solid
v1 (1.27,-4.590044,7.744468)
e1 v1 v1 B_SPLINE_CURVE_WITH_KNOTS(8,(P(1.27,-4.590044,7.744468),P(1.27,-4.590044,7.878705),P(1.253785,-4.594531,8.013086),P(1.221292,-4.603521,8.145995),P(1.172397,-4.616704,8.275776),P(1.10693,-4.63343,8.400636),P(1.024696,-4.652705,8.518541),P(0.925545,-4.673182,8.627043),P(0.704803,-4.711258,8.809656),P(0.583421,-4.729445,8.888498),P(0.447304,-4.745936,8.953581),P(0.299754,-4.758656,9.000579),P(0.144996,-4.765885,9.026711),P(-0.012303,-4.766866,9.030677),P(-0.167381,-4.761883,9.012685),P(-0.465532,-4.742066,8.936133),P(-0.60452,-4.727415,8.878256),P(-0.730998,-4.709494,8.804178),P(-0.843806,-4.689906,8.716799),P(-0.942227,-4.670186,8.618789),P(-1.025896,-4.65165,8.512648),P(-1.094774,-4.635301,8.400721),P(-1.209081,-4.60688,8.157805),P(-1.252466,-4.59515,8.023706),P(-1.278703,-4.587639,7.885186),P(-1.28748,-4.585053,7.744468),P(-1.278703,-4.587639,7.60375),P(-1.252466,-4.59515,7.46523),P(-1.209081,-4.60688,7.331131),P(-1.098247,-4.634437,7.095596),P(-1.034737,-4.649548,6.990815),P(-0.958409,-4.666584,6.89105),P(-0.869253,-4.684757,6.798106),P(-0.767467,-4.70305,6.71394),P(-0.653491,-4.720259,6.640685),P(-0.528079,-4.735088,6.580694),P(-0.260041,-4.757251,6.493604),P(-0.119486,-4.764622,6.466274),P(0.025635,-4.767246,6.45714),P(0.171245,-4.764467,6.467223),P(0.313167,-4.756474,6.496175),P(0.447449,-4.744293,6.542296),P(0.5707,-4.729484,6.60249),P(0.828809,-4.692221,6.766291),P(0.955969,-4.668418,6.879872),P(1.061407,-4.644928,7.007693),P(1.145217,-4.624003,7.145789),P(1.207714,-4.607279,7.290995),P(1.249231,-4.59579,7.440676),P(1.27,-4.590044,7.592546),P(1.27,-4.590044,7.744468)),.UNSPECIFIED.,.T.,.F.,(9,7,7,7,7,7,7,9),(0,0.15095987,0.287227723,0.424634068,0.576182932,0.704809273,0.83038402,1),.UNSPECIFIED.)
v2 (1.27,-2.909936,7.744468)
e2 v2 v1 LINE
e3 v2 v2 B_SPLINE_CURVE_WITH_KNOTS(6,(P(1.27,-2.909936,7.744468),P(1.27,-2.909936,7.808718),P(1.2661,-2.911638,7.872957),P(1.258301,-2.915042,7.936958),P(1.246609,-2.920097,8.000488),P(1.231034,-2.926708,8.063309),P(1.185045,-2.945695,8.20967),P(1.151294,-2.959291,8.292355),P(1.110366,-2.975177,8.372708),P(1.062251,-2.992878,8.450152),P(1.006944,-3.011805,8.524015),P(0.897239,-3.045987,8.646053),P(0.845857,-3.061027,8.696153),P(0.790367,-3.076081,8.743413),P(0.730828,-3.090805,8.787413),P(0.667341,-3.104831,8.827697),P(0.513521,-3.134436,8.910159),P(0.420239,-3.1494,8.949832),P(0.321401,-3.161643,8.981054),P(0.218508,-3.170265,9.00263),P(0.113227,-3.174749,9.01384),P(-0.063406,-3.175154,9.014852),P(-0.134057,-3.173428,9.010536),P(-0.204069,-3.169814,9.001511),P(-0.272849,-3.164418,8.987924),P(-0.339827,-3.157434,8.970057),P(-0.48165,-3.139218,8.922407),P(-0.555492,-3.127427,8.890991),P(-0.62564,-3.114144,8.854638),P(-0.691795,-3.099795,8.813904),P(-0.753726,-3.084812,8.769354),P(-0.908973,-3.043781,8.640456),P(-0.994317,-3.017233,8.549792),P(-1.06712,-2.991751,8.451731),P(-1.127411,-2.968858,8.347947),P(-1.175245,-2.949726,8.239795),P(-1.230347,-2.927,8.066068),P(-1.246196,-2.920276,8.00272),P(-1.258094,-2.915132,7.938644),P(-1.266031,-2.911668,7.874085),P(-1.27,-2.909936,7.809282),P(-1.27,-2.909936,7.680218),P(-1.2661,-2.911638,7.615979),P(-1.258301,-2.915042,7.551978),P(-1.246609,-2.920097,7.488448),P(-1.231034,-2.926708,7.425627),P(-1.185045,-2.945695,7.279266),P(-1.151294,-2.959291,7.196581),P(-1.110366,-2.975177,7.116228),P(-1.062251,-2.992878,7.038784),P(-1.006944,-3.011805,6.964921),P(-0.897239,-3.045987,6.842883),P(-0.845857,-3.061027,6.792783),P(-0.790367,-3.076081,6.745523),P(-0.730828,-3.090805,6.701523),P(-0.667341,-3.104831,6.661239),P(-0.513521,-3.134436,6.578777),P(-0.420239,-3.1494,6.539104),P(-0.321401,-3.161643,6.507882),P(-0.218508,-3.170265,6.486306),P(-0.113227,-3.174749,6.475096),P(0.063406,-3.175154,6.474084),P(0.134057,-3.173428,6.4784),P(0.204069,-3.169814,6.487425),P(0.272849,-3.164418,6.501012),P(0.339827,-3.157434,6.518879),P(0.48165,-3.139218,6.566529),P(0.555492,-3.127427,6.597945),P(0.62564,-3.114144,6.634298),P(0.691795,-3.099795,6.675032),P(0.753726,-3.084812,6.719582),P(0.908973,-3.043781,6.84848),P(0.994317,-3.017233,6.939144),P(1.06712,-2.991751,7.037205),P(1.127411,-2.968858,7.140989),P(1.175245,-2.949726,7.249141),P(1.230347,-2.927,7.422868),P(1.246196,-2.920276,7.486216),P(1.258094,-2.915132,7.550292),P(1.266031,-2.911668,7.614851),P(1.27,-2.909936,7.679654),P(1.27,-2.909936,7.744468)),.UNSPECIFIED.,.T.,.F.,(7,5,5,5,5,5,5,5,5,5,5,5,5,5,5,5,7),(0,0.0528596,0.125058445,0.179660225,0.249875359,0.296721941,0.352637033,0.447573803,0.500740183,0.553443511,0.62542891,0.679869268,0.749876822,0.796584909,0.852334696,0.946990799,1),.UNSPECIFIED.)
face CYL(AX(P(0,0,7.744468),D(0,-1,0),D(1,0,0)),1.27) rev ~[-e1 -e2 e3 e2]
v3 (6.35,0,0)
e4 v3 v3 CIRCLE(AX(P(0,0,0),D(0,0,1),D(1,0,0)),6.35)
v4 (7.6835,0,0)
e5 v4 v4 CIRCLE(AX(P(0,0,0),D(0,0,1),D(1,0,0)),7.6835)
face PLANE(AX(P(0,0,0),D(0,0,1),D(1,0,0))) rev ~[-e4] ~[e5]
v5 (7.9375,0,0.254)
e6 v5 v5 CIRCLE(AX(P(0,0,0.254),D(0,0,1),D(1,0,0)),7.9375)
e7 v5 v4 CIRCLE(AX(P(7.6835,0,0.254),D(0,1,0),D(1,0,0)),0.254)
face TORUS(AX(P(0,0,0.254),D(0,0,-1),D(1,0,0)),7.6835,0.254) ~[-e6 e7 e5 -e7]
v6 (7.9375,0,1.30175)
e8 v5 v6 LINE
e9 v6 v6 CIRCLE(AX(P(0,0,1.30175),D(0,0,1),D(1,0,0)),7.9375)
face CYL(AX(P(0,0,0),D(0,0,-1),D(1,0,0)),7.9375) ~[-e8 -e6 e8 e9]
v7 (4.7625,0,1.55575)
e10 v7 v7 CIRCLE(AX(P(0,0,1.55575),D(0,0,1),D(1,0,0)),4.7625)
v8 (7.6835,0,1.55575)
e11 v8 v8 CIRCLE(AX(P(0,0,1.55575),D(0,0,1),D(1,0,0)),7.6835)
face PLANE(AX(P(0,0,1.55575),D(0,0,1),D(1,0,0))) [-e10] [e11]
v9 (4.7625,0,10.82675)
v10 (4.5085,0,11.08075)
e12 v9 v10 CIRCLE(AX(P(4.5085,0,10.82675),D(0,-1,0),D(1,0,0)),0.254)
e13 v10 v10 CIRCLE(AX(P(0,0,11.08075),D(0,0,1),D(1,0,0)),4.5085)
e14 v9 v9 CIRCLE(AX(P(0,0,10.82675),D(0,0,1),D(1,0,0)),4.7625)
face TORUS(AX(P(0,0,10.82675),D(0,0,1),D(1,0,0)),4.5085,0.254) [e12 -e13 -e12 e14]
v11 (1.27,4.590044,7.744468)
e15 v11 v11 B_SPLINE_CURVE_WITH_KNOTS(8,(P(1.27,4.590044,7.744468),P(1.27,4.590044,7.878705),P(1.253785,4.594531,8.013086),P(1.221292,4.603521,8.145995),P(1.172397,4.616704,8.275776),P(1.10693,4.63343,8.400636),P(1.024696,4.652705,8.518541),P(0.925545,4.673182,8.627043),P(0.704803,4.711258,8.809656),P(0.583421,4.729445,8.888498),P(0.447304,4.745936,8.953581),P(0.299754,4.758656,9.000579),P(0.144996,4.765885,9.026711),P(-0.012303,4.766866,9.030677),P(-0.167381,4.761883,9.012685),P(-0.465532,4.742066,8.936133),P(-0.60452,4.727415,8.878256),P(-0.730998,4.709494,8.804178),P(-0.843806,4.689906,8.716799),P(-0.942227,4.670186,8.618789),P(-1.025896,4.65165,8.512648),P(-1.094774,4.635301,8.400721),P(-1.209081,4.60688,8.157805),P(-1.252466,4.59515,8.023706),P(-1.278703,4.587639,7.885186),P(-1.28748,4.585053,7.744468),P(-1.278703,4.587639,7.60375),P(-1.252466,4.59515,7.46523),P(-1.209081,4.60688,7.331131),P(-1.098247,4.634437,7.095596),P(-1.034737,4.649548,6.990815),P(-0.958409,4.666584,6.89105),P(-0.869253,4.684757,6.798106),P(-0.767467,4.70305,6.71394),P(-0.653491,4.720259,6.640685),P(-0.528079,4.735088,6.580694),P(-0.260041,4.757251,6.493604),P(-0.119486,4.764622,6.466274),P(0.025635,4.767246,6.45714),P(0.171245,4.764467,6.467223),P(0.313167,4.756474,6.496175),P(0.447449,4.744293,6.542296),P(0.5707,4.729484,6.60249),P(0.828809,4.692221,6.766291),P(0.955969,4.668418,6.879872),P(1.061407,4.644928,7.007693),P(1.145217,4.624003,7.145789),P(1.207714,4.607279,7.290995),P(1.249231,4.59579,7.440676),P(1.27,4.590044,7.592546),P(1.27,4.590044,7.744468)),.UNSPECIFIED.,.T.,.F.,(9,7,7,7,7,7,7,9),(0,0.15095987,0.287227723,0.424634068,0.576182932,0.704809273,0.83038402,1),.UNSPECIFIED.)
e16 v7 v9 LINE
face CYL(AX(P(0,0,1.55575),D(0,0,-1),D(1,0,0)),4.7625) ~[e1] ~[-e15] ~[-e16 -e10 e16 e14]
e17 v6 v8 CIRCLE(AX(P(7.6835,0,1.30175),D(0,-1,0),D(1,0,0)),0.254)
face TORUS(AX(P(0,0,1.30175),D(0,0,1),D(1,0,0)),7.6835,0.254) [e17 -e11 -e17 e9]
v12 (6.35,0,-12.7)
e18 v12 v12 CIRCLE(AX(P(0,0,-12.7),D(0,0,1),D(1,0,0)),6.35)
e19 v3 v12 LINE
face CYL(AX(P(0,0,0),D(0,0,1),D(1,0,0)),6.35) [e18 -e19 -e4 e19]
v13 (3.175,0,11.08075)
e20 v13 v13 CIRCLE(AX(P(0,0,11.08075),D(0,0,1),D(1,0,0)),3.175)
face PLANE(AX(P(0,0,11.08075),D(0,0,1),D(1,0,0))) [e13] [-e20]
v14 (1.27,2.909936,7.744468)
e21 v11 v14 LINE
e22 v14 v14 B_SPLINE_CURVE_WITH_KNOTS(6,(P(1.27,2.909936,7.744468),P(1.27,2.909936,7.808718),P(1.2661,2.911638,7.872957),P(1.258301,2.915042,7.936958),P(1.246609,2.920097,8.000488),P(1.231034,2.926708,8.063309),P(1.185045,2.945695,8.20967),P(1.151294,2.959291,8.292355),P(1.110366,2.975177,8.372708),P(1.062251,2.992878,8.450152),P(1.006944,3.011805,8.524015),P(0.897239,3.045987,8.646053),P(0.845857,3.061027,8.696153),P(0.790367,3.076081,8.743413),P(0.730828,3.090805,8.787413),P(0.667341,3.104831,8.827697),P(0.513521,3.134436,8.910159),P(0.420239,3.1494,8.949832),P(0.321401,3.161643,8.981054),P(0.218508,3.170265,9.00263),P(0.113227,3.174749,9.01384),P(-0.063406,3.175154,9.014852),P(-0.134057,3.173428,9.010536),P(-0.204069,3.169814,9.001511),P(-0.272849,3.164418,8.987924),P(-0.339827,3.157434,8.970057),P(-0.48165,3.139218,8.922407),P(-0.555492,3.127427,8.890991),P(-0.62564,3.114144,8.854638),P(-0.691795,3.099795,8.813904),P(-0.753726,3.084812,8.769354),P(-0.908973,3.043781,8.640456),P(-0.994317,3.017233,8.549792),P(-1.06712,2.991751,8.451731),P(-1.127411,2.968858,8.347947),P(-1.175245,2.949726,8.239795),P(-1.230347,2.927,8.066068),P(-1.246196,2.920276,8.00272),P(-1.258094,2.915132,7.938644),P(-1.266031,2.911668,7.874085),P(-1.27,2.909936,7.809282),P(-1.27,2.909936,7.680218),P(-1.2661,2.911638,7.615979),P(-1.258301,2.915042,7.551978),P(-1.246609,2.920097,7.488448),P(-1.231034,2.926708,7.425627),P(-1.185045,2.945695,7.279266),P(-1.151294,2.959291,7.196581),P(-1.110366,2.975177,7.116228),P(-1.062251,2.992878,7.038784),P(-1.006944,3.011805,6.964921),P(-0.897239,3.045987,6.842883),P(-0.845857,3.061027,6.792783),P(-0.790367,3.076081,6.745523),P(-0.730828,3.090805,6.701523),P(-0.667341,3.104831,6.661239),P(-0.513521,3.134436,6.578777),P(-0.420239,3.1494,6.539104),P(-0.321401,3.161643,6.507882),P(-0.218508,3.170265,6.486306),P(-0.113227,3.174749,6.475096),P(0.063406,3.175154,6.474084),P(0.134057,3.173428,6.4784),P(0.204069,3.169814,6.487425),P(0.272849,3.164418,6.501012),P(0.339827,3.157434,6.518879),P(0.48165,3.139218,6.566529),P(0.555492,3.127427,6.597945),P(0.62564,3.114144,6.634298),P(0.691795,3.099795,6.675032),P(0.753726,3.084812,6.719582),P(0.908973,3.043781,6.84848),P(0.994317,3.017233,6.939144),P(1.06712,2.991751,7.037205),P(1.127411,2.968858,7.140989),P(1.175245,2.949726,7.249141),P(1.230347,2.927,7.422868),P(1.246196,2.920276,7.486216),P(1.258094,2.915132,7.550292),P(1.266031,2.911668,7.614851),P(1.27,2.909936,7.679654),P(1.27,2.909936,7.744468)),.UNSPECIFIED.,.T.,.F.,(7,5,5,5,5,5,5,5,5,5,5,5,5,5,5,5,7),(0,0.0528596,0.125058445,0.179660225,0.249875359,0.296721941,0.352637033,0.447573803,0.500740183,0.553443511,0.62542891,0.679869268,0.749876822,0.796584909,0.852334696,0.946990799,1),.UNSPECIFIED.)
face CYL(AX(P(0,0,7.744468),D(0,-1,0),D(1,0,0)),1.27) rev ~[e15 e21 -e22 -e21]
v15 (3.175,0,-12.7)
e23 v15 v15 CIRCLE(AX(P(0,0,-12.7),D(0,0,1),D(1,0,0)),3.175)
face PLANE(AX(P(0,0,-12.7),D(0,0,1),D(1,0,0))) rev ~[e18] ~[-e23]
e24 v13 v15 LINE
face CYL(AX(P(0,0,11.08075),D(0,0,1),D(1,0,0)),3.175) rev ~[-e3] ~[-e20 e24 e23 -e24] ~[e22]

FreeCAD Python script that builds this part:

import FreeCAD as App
import Part
import Sketcher
from FreeCAD import Vector
Q = App.Units.Quantity


def edges_at(feature, points):
    """Names of the edges that pass closest to the given points."""
    edges = feature.Shape.Edges
    near = lambda p: min(range(len(edges)), key=lambda i: edges[i].distToShape(Part.Vertex(*p))[0])
    return sorted({f"Edge{near(p) + 1}" for p in points})

doc = App.newDocument("Part")
body = doc.addObject("PartDesign::Body", "Body")

# Sketch on XY plane
sketch1 = doc.addObject("Sketcher::SketchObject", "Sketch")
body.addObject(sketch1)
sketch1.AttachmentSupport = (doc.XY_Plane, [""])
sketch1.MapMode = "FlatFace"
sketch1.addGeometry(Part.Circle(Vector(0, 0, 0), Vector(0, 0, 1), 6.35), False)
sketch1.addConstraint(Sketcher.Constraint("Coincident", 0, 3, -1, 1))
sketch1.addConstraint(Sketcher.Constraint("Diameter", 0, Q("0.5 in")))
pad1 = doc.addObject("PartDesign::Pad", "Pad")
body.addObject(pad1)
pad1.Profile = sketch1
pad1.Length = Q("0.5 in")
pad1.Reversed = True

# Sketch on XY plane
sketch2 = doc.addObject("Sketcher::SketchObject", "Sketch001")
body.addObject(sketch2)
sketch2.AttachmentSupport = (doc.XY_Plane, [""])
sketch2.MapMode = "FlatFace"
sketch2.addGeometry(Part.Circle(Vector(0, 0, 0), Vector(0, 0, 1), 7.9375), False)
sketch2.addConstraint(Sketcher.Constraint("Coincident", 0, 3, -1, 1))
sketch2.addConstraint(Sketcher.Constraint("Diameter", 0, Q("0.625 in")))
pad2 = doc.addObject("PartDesign::Pad", "Pad001")
body.addObject(pad2)
pad2.Profile = sketch2
pad2.Length = 1.55575

# Sketch on XY plane
sketch3 = doc.addObject("Sketcher::SketchObject", "Sketch002")
body.addObject(sketch3)
sketch3.AttachmentSupport = (doc.XY_Plane, [""])
sketch3.MapMode = "FlatFace"
sketch3.AttachmentOffset = App.Placement(Vector(0, 0, 1.55575), App.Rotation())
sketch3.addGeometry(Part.Circle(Vector(0, 0, 0), Vector(0, 0, 1), 4.7625), False)
sketch3.addConstraint(Sketcher.Constraint("Coincident", 0, 3, -1, 1))
sketch3.addConstraint(Sketcher.Constraint("Diameter", 0, Q("0.375 in")))
pad3 = doc.addObject("PartDesign::Pad", "Pad002")
body.addObject(pad3)
pad3.Profile = sketch3
pad3.Length = Q("0.375 in")
doc.recompute()

fillet = doc.addObject("PartDesign::Fillet", "Fillet")
body.addObject(fillet)
fillet.Base = (pad3, edges_at(pad3, [(-7.938, 0, 1.556), (-7.938, 0, 0), (-4.763, 0, 11.081)]))
fillet.Radius = Q("0.01 in")

# Sketch on XZ plane
sketch4 = doc.addObject("Sketcher::SketchObject", "Sketch003")
body.addObject(sketch4)
sketch4.AttachmentSupport = (doc.XZ_Plane, [""])
sketch4.MapMode = "FlatFace"
sketch4.addGeometry(Part.Circle(Vector(0, 7.744468, 0), Vector(0, 0, 1), 1.27), False)
sketch4.addConstraint(Sketcher.Constraint("PointOnObject", 0, 3, -2))
sketch4.addConstraint(Sketcher.Constraint("Diameter", 0, Q("0.1 in")))
sketch4.addConstraint(Sketcher.Constraint("DistanceY", -1, 1, 0, 3, Q("7.744468 mm")))
pocket1 = doc.addObject("PartDesign::Pocket", "Pocket")
body.addObject(pocket1)
pocket1.Profile = sketch4
pocket1.Length = Q("1 in")
pocket1.Midplane = True

# Sketch on XY plane
sketch5 = doc.addObject("Sketcher::SketchObject", "Sketch004")
body.addObject(sketch5)
sketch5.AttachmentSupport = (doc.XY_Plane, [""])
sketch5.MapMode = "FlatFace"
sketch5.AttachmentOffset = App.Placement(Vector(0, 0, 11.08075), App.Rotation())
sketch5.addGeometry(Part.Circle(Vector(0, 0, 0), Vector(0, 0, 1), 3.175), False)
sketch5.addConstraint(Sketcher.Constraint("Coincident", 0, 3, -1, 1))
sketch5.addConstraint(Sketcher.Constraint("Diameter", 0, Q("0.25 in")))
pocket2 = doc.addObject("PartDesign::Pocket", "Pocket001")
body.addObject(pocket2)
pocket2.Profile = sketch5
pocket2.Type = "ThroughAll"

doc.recompute()
